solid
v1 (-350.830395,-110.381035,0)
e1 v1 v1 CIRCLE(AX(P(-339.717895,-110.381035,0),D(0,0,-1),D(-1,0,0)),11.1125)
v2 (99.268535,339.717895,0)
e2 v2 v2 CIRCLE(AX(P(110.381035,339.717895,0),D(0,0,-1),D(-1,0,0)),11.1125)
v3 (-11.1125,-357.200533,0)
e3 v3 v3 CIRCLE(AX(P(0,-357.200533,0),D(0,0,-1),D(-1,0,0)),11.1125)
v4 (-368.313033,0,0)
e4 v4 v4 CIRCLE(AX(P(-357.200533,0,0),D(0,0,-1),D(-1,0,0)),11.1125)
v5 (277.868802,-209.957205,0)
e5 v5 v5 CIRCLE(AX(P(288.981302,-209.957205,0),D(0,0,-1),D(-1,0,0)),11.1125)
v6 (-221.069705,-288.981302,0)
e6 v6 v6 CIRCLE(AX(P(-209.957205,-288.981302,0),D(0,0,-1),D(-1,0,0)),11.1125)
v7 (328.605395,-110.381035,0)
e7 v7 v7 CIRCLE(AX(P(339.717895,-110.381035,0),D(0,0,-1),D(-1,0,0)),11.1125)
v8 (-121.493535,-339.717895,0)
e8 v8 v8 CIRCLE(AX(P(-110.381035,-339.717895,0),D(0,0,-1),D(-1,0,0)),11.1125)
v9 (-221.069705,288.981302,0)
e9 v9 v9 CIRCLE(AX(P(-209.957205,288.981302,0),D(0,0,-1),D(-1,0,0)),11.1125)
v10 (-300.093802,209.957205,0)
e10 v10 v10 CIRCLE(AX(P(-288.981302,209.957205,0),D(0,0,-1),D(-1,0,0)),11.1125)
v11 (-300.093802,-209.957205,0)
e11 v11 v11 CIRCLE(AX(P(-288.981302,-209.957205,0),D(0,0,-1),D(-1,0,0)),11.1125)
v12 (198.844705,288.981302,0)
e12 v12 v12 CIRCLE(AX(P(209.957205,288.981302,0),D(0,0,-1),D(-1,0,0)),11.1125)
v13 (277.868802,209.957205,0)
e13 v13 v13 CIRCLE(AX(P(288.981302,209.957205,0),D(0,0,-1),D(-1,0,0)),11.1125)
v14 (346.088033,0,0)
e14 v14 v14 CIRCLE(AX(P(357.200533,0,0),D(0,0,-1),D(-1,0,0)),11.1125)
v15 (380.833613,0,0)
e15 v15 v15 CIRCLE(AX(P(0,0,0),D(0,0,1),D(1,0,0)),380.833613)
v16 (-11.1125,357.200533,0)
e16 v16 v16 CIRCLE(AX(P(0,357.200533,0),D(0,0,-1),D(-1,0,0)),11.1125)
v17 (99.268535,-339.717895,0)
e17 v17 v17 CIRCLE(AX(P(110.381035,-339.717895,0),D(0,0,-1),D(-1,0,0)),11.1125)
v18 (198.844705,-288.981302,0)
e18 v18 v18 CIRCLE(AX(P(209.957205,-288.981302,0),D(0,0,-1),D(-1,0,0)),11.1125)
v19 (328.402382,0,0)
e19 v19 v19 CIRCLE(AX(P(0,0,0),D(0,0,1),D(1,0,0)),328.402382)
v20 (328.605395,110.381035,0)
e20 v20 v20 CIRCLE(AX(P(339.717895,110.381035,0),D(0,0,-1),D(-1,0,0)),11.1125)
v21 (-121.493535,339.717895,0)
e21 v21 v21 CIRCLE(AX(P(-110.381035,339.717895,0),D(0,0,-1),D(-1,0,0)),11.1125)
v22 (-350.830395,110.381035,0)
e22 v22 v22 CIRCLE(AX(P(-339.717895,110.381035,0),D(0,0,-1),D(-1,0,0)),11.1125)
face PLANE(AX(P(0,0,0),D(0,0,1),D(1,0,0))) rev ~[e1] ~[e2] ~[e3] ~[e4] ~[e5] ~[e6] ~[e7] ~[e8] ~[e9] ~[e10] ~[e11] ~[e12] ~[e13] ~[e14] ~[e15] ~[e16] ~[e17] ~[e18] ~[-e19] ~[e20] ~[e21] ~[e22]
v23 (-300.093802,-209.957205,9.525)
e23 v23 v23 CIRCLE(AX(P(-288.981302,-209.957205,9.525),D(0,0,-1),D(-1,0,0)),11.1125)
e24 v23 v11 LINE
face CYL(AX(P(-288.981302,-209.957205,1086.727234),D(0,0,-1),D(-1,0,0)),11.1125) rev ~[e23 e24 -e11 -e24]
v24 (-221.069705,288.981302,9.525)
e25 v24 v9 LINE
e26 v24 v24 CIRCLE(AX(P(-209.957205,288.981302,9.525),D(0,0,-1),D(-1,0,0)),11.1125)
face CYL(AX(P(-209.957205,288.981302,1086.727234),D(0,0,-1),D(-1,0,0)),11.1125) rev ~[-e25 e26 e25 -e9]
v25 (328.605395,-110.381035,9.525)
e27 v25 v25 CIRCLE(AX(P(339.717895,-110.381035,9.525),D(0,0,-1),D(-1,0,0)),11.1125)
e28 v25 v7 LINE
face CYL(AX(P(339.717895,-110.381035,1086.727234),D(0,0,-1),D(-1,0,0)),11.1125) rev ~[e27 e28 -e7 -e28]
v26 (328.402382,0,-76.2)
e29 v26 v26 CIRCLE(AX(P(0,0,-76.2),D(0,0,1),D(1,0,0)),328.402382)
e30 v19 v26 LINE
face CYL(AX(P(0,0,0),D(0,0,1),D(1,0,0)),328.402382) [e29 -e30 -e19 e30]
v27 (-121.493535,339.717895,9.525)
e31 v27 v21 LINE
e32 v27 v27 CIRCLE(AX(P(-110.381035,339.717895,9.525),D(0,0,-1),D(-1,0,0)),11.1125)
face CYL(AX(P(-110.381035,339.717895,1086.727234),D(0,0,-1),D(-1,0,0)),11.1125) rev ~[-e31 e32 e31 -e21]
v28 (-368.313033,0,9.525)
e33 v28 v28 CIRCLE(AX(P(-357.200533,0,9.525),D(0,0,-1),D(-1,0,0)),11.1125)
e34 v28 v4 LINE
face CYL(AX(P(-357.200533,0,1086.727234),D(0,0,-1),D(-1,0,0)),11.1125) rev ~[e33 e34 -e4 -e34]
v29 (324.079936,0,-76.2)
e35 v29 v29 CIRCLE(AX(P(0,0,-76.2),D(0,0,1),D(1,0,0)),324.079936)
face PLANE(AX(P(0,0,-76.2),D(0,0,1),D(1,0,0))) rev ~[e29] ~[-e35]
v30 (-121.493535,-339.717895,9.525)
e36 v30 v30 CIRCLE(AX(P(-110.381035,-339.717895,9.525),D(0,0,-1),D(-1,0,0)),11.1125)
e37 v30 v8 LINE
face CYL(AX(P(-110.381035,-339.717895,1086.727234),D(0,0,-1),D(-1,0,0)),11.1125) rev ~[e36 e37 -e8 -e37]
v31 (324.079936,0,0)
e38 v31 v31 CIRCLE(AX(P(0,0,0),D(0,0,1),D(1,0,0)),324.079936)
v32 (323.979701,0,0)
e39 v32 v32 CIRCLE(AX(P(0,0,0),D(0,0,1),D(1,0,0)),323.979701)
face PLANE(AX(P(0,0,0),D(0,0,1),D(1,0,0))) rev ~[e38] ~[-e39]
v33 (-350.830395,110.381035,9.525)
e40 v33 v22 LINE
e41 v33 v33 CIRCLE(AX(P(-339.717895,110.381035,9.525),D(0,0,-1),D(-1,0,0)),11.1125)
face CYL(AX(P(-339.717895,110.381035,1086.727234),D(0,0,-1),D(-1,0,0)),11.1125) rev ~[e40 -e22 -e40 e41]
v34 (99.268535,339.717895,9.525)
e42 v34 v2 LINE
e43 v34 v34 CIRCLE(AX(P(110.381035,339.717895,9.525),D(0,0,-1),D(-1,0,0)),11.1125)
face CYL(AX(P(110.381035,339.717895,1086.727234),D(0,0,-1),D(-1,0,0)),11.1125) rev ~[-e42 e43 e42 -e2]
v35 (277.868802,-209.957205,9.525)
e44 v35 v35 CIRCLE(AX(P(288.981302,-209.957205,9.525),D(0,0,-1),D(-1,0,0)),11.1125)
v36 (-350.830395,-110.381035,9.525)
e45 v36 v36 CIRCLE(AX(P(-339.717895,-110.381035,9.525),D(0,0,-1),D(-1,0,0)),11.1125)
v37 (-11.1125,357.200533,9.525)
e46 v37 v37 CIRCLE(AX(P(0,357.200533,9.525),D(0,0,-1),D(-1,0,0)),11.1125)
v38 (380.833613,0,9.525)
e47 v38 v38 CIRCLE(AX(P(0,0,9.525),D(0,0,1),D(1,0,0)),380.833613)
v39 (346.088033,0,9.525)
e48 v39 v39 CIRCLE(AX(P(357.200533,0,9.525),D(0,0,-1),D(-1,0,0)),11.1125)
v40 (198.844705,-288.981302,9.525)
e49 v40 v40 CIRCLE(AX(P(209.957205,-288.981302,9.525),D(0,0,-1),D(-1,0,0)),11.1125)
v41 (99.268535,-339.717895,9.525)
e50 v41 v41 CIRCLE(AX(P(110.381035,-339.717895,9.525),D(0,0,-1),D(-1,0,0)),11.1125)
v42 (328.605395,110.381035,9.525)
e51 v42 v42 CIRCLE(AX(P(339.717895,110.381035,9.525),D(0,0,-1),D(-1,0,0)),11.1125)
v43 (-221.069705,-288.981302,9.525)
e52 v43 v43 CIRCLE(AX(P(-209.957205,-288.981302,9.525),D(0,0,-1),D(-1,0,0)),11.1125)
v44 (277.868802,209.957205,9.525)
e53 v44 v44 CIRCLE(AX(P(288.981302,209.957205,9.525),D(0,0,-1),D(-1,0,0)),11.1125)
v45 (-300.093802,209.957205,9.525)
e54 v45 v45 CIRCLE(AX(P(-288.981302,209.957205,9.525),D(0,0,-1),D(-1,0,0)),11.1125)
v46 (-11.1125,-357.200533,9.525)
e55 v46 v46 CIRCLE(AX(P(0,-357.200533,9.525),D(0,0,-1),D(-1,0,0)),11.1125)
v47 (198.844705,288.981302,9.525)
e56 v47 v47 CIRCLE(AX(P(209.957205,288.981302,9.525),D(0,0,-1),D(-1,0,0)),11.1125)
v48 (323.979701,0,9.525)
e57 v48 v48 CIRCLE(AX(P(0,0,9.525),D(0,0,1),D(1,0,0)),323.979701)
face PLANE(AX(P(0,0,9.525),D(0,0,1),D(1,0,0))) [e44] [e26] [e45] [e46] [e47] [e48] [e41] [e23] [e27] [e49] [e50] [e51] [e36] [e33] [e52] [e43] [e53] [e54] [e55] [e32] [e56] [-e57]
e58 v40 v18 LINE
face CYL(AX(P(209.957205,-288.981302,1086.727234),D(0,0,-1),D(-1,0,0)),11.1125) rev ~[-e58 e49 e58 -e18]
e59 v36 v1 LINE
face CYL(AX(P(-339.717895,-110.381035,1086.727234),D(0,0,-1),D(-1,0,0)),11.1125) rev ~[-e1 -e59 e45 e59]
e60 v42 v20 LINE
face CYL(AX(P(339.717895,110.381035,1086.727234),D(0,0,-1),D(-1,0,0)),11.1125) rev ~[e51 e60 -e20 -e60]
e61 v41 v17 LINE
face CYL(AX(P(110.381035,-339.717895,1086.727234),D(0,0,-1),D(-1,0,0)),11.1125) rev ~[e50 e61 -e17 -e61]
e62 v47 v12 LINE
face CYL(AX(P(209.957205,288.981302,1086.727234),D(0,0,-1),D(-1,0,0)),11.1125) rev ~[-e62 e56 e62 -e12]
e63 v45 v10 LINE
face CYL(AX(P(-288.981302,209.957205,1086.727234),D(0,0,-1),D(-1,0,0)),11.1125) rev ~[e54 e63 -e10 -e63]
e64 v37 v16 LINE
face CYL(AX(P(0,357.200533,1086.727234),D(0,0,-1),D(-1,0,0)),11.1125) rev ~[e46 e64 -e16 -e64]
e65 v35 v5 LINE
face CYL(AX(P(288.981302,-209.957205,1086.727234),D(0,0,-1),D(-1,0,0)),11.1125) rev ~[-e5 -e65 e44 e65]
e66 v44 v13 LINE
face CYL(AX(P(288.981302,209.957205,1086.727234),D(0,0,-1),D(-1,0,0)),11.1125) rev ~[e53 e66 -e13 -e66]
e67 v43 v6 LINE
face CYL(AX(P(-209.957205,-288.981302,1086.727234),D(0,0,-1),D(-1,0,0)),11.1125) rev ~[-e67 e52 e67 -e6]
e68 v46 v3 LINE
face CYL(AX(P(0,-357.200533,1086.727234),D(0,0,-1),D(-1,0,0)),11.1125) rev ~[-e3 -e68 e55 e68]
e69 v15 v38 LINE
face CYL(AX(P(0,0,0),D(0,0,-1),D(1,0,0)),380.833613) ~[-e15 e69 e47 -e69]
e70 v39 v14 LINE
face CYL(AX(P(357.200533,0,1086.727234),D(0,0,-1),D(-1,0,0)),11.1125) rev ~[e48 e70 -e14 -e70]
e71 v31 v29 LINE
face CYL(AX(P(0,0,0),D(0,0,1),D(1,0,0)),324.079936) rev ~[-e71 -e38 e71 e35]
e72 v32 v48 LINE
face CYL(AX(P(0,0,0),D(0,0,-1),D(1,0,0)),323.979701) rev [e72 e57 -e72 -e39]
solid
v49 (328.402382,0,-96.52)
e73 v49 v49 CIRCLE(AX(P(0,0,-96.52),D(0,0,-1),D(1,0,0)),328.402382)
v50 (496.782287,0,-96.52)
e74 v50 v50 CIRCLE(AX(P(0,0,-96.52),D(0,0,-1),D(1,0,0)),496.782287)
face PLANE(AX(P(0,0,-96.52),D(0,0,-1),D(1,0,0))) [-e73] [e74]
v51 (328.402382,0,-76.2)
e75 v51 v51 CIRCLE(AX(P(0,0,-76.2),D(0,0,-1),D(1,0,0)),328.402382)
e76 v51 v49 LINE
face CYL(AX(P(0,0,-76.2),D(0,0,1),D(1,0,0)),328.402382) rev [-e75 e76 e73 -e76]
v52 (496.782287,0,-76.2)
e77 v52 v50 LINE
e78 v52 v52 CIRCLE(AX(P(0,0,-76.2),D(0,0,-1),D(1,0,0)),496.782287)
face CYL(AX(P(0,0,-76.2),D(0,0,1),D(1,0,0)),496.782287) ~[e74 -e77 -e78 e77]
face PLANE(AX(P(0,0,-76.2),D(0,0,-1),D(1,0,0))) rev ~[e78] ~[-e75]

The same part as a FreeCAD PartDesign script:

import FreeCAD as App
import Part
import Sketcher

V = App.Vector
Q = App.Units.Quantity

doc = App.newDocument("Part")
body = doc.addObject("PartDesign::Body", "Body")

# Sketch on XY plane
sketch1 = doc.addObject("Sketcher::SketchObject", "Sketch")
body.addObject(sketch1)
sketch1.AttachmentSupport = (doc.XY_Plane, [""])
sketch1.MapMode = "FlatFace"
sketch1.addGeometry(Part.Circle(V(0, 0, 0), V(0, 0, 1), 381), False)
sketch1.addGeometry(Part.Circle(V(0, 0, 0), V(0, 0, 1), 324), False)
sketch1.addConstraint(Sketcher.Constraint("Coincident", 0, 3, -1, 1))
sketch1.addConstraint(Sketcher.Constraint("Coincident", 1, 3, -1, 1))
sketch1.addConstraint(Sketcher.Constraint("Diameter", 1, 647.959402))
sketch1.addConstraint(Sketcher.Constraint("Diameter", 0, 761.667226))
pad1 = doc.addObject("PartDesign::Pad", "Pad")
body.addObject(pad1)
pad1.Profile = sketch1
pad1.Length = Q("0.375 in")

# Sketch on XY plane
sketch2 = doc.addObject("Sketcher::SketchObject", "Sketch001")
body.addObject(sketch2)
sketch2.AttachmentSupport = (doc.XY_Plane, [""])
sketch2.MapMode = "FlatFace"
sketch2.AttachmentOffset = App.Placement(V(0, 0, 0.375 * 25.4), App.Rotation())
sketch2.addGeometry(Part.Circle(V(-289, 210, 0), V(0, 0, 1), 11), False)
sketch2.addGeometry(Part.Circle(V(-340, 110, 0), V(0, 0, 1), 11), False)
sketch2.addGeometry(Part.Circle(V(-357, 0, 0), V(0, 0, 1), 11), False)
sketch2.addGeometry(Part.Circle(V(-340, -110, 0), V(0, 0, 1), 11), False)
sketch2.addGeometry(Part.Circle(V(-289, -210, 0), V(0, 0, 1), 11), False)
sketch2.addGeometry(Part.Circle(V(-210, -289, 0), V(0, 0, 1), 11), False)
sketch2.addGeometry(Part.Circle(V(-110, -340, 0), V(0, 0, 1), 11), False)
sketch2.addGeometry(Part.Circle(V(0, -357, 0), V(0, 0, 1), 11), False)
sketch2.addGeometry(Part.Circle(V(110, -340, 0), V(0, 0, 1), 11), False)
sketch2.addGeometry(Part.Circle(V(210, -289, 0), V(0, 0, 1), 11), False)
sketch2.addGeometry(Part.Circle(V(289, -210, 0), V(0, 0, 1), 11), False)
sketch2.addGeometry(Part.Circle(V(340, -110, 0), V(0, 0, 1), 11), False)
sketch2.addGeometry(Part.Circle(V(357, 0, 0), V(0, 0, 1), 11), False)
sketch2.addGeometry(Part.Circle(V(340, 110, 0), V(0, 0, 1), 11), False)
sketch2.addGeometry(Part.Circle(V(289, 210, 0), V(0, 0, 1), 11), False)
sketch2.addGeometry(Part.Circle(V(210, 289, 0), V(0, 0, 1), 11), False)
sketch2.addGeometry(Part.Circle(V(110, 340, 0), V(0, 0, 1), 11), False)
sketch2.addGeometry(Part.Circle(V(0, 357, 0), V(0, 0, 1), 11), False)
sketch2.addGeometry(Part.Circle(V(-110, 340, 0), V(0, 0, 1), 11), False)
sketch2.addGeometry(Part.Circle(V(-210, 289, 0), V(0, 0, 1), 11), False)
sketch2.addConstraint(Sketcher.Constraint("Equal", 0, 1))
sketch2.addConstraint(Sketcher.Constraint("Equal", 1, 2))
sketch2.addConstraint(Sketcher.Constraint("Equal", 2, 3))
sketch2.addConstraint(Sketcher.Constraint("Equal", 3, 4))
sketch2.addConstraint(Sketcher.Constraint("Equal", 4, 5))
sketch2.addConstraint(Sketcher.Constraint("Equal", 5, 6))
sketch2.addConstraint(Sketcher.Constraint("Equal", 6, 7))
sketch2.addConstraint(Sketcher.Constraint("Equal", 7, 8))
sketch2.addConstraint(Sketcher.Constraint("Equal", 8, 9))
sketch2.addConstraint(Sketcher.Constraint("Equal", 9, 10))
sketch2.addConstraint(Sketcher.Constraint("Equal", 10, 11))
sketch2.addConstraint(Sketcher.Constraint("Equal", 11, 12))
sketch2.addConstraint(Sketcher.Constraint("Equal", 12, 13))
sketch2.addConstraint(Sketcher.Constraint("Equal", 13, 14))
sketch2.addConstraint(Sketcher.Constraint("Equal", 14, 15))
sketch2.addConstraint(Sketcher.Constraint("Equal", 15, 16))
sketch2.addConstraint(Sketcher.Constraint("Equal", 16, 17))
sketch2.addConstraint(Sketcher.Constraint("Equal", 17, 18))
sketch2.addConstraint(Sketcher.Constraint("Equal", 18, 19))
sketch2.addConstraint(Sketcher.Constraint("Symmetric", 0, 3, 10, 3, -1, 1))
sketch2.addConstraint(Sketcher.Constraint("Symmetric", 1, 3, 11, 3, -1, 1))
sketch2.addConstraint(Sketcher.Constraint("Symmetric", 2, 3, 12, 3, -1, 1))
sketch2.addConstraint(Sketcher.Constraint("Symmetric", 3, 3, 13, 3, -1, 1))
sketch2.addConstraint(Sketcher.Constraint("Symmetric", 4, 3, 14, 3, -1, 1))
sketch2.addConstraint(Sketcher.Constraint("Symmetric", 5, 3, 15, 3, -1, 1))
sketch2.addConstraint(Sketcher.Constraint("Symmetric", 6, 3, 16, 3, -1, 1))
sketch2.addConstraint(Sketcher.Constraint("Symmetric", 7, 3, 17, 3, -1, 1))
sketch2.addConstraint(Sketcher.Constraint("Symmetric", 8, 3, 18, 3, -1, 1))
sketch2.addConstraint(Sketcher.Constraint("Symmetric", 9, 3, 19, 3, -1, 1))
sketch2.addConstraint(Sketcher.Constraint("Symmetric", 6, 3, 8, 3, -2))
sketch2.addConstraint(Sketcher.Constraint("Symmetric", 5, 3, 9, 3, -2))
sketch2.addConstraint(Sketcher.Constraint("Symmetric", 4, 3, 10, 3, -2))
sketch2.addConstraint(Sketcher.Constraint("Symmetric", 3, 3, 11, 3, -2))
sketch2.addConstraint(Sketcher.Constraint("PointOnObject", 2, 3, -1))
sketch2.addConstraint(Sketcher.Constraint("PointOnObject", 7, 3, -2))
sketch2.addConstraint(Sketcher.Constraint("Diameter", 0, Q("0.875 in")))
sketch2.addConstraint(Sketcher.Constraint("DistanceX", 2, 3, 6, 3, 246.819498))
sketch2.addConstraint(Sketcher.Constraint("DistanceY", 7, 3, 3, 3, 246.819498))
sketch2.addConstraint(Sketcher.Constraint("DistanceY", 1, 3, 0, 3, 99.57617))
sketch2.addConstraint(Sketcher.Constraint("DistanceX", 2, 3, 1, 3, 17.482638))
sketch2.addConstraint(Sketcher.Constraint("DistanceX", 2, 3, 0, 3, 68.219231))
sketch2.addConstraint(Sketcher.Constraint("DistanceY", 3, 3, 1, 3, 220.76207))
sketch2.addConstraint(Sketcher.Constraint("DistanceX", 3, 3, 5, 3, 129.76069))
sketch2.addConstraint(Sketcher.Constraint("DistanceY", 6, 3, 4, 3, 129.76069))
sketch2.addConstraint(Sketcher.Constraint("DistanceY", 7, 3, 5, 3, 68.219231))
sketch2.addConstraint(Sketcher.Constraint("DistanceX", 6, 3, 8, 3, 220.76207))
doc.recompute()
hole = doc.addObject("PartDesign::Hole", "Hole")
body.addObject(hole)
hole.Profile = sketch2
hole.ThreadType = "None"
hole.Diameter = Q("0.875 in")
hole.DepthType = "ThroughAll"

# Sketch on XY plane
sketch3 = doc.addObject("Sketcher::SketchObject", "Sketch002")
body.addObject(sketch3)
sketch3.AttachmentSupport = (doc.XY_Plane, [""])
sketch3.MapMode = "FlatFace"
sketch3.addGeometry(Part.Circle(V(0, 0, 0), V(0, 0, 1), 328), False)
sketch3.addGeometry(Part.Circle(V(0, 0, 0), V(0, 0, 1), 324), False)
sketch3.addConstraint(Sketcher.Constraint("Coincident", 0, 3, -1, 1))
sketch3.addConstraint(Sketcher.Constraint("Coincident", 1, 3, -1, 1))
sketch3.addConstraint(Sketcher.Constraint("Diameter", 1, 648.159872))
sketch3.addConstraint(Sketcher.Constraint("Diameter", 0, 656.804764))
pad2 = doc.addObject("PartDesign::Pad", "Pad001")
body.addObject(pad2)
pad2.Profile = sketch3
pad2.Length = Q("3 in")
pad2.Reversed = True
body2 = doc.addObject("PartDesign::Body", "Body001")

# Sketch on XY plane
sketch4 = doc.addObject("Sketcher::SketchObject", "Sketch003")
body2.addObject(sketch4)
sketch4.AttachmentSupport = (doc.getObject("XY_Plane001"), [""])
sketch4.MapMode = "FlatFace"
sketch4.AttachmentOffset = App.Placement(V(0, 0, -3 * 25.4), App.Rotation())
sketch4.addGeometry(Part.Circle(V(0, 0, 0), V(0, 0, 1), 497), False)
sketch4.addGeometry(Part.Circle(V(0, 0, 0), V(0, 0, 1), 328), False)
sketch4.addConstraint(Sketcher.Constraint("Coincident", 0, 3, -1, 1))
sketch4.addConstraint(Sketcher.Constraint("Coincident", 1, 3, -1, 1))
sketch4.addConstraint(Sketcher.Constraint("Diameter", 0, 993.564574))
sketch4.addConstraint(Sketcher.Constraint("Diameter", 1, 656.804764))
pad3 = doc.addObject("PartDesign::Pad", "Pad002")
body2.addObject(pad3)
pad3.Profile = sketch4
pad3.Length = Q("0.8 in")
pad3.Reversed = True

doc.recompute()
